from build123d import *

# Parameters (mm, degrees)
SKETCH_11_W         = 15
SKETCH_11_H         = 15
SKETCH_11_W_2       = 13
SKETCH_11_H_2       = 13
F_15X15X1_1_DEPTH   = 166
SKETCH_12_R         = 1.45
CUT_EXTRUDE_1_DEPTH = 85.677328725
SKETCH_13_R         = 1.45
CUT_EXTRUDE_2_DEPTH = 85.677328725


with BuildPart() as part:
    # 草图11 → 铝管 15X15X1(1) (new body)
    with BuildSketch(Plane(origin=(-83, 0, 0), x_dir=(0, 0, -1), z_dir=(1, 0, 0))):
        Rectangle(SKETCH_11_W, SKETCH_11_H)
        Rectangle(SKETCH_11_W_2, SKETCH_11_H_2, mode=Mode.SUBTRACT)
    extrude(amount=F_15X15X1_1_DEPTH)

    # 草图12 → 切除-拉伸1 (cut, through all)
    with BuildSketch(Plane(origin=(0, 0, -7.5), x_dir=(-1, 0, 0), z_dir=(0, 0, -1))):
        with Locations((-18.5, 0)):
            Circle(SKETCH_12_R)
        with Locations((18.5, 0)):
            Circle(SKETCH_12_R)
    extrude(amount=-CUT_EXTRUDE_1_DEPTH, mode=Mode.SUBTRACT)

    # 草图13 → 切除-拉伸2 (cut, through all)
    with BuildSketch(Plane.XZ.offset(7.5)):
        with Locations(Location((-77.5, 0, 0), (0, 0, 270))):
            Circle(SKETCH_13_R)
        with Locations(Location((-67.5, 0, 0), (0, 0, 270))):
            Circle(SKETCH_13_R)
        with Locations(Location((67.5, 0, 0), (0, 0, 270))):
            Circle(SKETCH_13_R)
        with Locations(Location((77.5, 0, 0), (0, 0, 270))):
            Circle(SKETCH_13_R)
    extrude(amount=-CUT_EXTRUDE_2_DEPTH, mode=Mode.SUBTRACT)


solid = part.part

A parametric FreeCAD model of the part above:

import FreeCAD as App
import Part
import Sketcher

V = App.Vector


def add_polygon(sketch, points):
    """Adds a closed chain of lines whose ends are joined by coincident constraints."""
    first, n = sketch.GeometryCount, len(points)
    for a, b in zip(points, points[1:] + points[:1]):
        sketch.addGeometry(Part.LineSegment(App.Vector(*a, 0), App.Vector(*b, 0)), False)
    for i in range(n):
        sketch.addConstraint(Sketcher.Constraint("Coincident", first + i, 2, first + (i + 1) % n, 1))

doc = App.newDocument("Part")
body = doc.addObject("PartDesign::Body", "Body")

sketch1 = body.newObject("Sketcher::SketchObject", "Sketch")
sketch1.AttachmentSupport = (doc.getObject("YZ_Plane"), [""])
sketch1.MapMode = "FlatFace"
sketch1.AttachmentOffset = App.Placement(V(0, 0, -83), App.Rotation())
add_polygon(sketch1, [(8, 8), (-8, 8), (-8, -8), (8, -8)])
add_polygon(sketch1, [(-6, -6), (-6, 6), (6, 6), (6, -6)])
sketch1.addConstraint([
    Sketcher.Constraint("Horizontal", 0),
    Sketcher.Constraint("Vertical", 1),
    Sketcher.Constraint("Horizontal", 2),
    Sketcher.Constraint("Vertical", 3),
    Sketcher.Constraint("Vertical", 4),
    Sketcher.Constraint("Horizontal", 5),
    Sketcher.Constraint("Vertical", 6),
    Sketcher.Constraint("Horizontal", 7),
    Sketcher.Constraint("Symmetric", 0, 2, 2, 2, -1, 1),
    Sketcher.Constraint("Symmetric", 4, 2, 6, 2, -1, 1),
    Sketcher.Constraint("Equal", 2, 1),
    Sketcher.Constraint("Equal", 7, 4),
    Sketcher.Constraint("DistanceX", 0, 2, 0, 1, 15.0),
    Sketcher.Constraint("DistanceX", 5, 1, 5, 2, 13.0),
])
pad1 = body.newObject("PartDesign::Pad", "Pad")
pad1.Profile = sketch1
pad1.Length = 166

sketch2 = body.newObject("Sketcher::SketchObject", "Sketch001")
sketch2.AttachmentSupport = (doc.getObject("XY_Plane"), [""])
sketch2.MapMode = "FlatFace"
sketch2.AttachmentOffset = App.Placement(V(0, 0, -7.5), App.Rotation())
sketch2.addGeometry([
    Part.Circle(V(18.5, 0, 0), V(0, 0, 1), 1.4),
    Part.Circle(V(-18.5, 0, 0), V(0, 0, 1), 1.4),
], False)
sketch2.addConstraint([
    Sketcher.Constraint("Equal", 0, 1),
    Sketcher.Constraint("Symmetric", 0, 3, 1, 3, -1, 1),
    Sketcher.Constraint("PointOnObject", 0, 3, -1),
    Sketcher.Constraint("Diameter", 0, 2.9),
    Sketcher.Constraint("DistanceX", 1, 3, 0, 3, 37.0),
])
pocket1 = body.newObject("PartDesign::Pocket", "Pocket")
pocket1.Profile = sketch2
pocket1.Type = "ThroughAll"
pocket1.Reversed = True

sketch3 = body.newObject("Sketcher::SketchObject", "Sketch002")
sketch3.AttachmentSupport = (doc.getObject("XZ_Plane"), [""])
sketch3.MapMode = "FlatFace"
sketch3.AttachmentOffset = App.Placement(V(0, 0, 7.5), App.Rotation())
sketch3.addGeometry([
    Part.Circle(V(-77.5, 0, 0), V(0, 0, 1), 1.4),
    Part.Circle(V(-67.5, 0, 0), V(0, 0, 1), 1.4),
    Part.Circle(V(67.5, 0, 0), V(0, 0, 1), 1.4),
    Part.Circle(V(77.5, 0, 0), V(0, 0, 1), 1.4),
], False)
sketch3.addConstraint([
    Sketcher.Constraint("Equal", 0, 1),
    Sketcher.Constraint("Equal", 1, 2),
    Sketcher.Constraint("Equal", 2, 3),
    Sketcher.Constraint("Symmetric", 1, 3, 2, 3, -1, 1),
    Sketcher.Constraint("Symmetric", 0, 3, 3, 3, -1, 1),
    Sketcher.Constraint("PointOnObject", 0, 3, -1),
    Sketcher.Constraint("PointOnObject", 1, 3, -1),
    Sketcher.Constraint("Diameter", 0, 2.9),
    Sketcher.Constraint("DistanceX", 0, 3, 1, 3, 10.0),
    Sketcher.Constraint("DistanceX", 1, 3, 2, 3, 135.0),
])
pocket2 = body.newObject("PartDesign::Pocket", "Pocket001")
pocket2.Profile = sketch3
pocket2.Type = "ThroughAll"

doc.recompute()
